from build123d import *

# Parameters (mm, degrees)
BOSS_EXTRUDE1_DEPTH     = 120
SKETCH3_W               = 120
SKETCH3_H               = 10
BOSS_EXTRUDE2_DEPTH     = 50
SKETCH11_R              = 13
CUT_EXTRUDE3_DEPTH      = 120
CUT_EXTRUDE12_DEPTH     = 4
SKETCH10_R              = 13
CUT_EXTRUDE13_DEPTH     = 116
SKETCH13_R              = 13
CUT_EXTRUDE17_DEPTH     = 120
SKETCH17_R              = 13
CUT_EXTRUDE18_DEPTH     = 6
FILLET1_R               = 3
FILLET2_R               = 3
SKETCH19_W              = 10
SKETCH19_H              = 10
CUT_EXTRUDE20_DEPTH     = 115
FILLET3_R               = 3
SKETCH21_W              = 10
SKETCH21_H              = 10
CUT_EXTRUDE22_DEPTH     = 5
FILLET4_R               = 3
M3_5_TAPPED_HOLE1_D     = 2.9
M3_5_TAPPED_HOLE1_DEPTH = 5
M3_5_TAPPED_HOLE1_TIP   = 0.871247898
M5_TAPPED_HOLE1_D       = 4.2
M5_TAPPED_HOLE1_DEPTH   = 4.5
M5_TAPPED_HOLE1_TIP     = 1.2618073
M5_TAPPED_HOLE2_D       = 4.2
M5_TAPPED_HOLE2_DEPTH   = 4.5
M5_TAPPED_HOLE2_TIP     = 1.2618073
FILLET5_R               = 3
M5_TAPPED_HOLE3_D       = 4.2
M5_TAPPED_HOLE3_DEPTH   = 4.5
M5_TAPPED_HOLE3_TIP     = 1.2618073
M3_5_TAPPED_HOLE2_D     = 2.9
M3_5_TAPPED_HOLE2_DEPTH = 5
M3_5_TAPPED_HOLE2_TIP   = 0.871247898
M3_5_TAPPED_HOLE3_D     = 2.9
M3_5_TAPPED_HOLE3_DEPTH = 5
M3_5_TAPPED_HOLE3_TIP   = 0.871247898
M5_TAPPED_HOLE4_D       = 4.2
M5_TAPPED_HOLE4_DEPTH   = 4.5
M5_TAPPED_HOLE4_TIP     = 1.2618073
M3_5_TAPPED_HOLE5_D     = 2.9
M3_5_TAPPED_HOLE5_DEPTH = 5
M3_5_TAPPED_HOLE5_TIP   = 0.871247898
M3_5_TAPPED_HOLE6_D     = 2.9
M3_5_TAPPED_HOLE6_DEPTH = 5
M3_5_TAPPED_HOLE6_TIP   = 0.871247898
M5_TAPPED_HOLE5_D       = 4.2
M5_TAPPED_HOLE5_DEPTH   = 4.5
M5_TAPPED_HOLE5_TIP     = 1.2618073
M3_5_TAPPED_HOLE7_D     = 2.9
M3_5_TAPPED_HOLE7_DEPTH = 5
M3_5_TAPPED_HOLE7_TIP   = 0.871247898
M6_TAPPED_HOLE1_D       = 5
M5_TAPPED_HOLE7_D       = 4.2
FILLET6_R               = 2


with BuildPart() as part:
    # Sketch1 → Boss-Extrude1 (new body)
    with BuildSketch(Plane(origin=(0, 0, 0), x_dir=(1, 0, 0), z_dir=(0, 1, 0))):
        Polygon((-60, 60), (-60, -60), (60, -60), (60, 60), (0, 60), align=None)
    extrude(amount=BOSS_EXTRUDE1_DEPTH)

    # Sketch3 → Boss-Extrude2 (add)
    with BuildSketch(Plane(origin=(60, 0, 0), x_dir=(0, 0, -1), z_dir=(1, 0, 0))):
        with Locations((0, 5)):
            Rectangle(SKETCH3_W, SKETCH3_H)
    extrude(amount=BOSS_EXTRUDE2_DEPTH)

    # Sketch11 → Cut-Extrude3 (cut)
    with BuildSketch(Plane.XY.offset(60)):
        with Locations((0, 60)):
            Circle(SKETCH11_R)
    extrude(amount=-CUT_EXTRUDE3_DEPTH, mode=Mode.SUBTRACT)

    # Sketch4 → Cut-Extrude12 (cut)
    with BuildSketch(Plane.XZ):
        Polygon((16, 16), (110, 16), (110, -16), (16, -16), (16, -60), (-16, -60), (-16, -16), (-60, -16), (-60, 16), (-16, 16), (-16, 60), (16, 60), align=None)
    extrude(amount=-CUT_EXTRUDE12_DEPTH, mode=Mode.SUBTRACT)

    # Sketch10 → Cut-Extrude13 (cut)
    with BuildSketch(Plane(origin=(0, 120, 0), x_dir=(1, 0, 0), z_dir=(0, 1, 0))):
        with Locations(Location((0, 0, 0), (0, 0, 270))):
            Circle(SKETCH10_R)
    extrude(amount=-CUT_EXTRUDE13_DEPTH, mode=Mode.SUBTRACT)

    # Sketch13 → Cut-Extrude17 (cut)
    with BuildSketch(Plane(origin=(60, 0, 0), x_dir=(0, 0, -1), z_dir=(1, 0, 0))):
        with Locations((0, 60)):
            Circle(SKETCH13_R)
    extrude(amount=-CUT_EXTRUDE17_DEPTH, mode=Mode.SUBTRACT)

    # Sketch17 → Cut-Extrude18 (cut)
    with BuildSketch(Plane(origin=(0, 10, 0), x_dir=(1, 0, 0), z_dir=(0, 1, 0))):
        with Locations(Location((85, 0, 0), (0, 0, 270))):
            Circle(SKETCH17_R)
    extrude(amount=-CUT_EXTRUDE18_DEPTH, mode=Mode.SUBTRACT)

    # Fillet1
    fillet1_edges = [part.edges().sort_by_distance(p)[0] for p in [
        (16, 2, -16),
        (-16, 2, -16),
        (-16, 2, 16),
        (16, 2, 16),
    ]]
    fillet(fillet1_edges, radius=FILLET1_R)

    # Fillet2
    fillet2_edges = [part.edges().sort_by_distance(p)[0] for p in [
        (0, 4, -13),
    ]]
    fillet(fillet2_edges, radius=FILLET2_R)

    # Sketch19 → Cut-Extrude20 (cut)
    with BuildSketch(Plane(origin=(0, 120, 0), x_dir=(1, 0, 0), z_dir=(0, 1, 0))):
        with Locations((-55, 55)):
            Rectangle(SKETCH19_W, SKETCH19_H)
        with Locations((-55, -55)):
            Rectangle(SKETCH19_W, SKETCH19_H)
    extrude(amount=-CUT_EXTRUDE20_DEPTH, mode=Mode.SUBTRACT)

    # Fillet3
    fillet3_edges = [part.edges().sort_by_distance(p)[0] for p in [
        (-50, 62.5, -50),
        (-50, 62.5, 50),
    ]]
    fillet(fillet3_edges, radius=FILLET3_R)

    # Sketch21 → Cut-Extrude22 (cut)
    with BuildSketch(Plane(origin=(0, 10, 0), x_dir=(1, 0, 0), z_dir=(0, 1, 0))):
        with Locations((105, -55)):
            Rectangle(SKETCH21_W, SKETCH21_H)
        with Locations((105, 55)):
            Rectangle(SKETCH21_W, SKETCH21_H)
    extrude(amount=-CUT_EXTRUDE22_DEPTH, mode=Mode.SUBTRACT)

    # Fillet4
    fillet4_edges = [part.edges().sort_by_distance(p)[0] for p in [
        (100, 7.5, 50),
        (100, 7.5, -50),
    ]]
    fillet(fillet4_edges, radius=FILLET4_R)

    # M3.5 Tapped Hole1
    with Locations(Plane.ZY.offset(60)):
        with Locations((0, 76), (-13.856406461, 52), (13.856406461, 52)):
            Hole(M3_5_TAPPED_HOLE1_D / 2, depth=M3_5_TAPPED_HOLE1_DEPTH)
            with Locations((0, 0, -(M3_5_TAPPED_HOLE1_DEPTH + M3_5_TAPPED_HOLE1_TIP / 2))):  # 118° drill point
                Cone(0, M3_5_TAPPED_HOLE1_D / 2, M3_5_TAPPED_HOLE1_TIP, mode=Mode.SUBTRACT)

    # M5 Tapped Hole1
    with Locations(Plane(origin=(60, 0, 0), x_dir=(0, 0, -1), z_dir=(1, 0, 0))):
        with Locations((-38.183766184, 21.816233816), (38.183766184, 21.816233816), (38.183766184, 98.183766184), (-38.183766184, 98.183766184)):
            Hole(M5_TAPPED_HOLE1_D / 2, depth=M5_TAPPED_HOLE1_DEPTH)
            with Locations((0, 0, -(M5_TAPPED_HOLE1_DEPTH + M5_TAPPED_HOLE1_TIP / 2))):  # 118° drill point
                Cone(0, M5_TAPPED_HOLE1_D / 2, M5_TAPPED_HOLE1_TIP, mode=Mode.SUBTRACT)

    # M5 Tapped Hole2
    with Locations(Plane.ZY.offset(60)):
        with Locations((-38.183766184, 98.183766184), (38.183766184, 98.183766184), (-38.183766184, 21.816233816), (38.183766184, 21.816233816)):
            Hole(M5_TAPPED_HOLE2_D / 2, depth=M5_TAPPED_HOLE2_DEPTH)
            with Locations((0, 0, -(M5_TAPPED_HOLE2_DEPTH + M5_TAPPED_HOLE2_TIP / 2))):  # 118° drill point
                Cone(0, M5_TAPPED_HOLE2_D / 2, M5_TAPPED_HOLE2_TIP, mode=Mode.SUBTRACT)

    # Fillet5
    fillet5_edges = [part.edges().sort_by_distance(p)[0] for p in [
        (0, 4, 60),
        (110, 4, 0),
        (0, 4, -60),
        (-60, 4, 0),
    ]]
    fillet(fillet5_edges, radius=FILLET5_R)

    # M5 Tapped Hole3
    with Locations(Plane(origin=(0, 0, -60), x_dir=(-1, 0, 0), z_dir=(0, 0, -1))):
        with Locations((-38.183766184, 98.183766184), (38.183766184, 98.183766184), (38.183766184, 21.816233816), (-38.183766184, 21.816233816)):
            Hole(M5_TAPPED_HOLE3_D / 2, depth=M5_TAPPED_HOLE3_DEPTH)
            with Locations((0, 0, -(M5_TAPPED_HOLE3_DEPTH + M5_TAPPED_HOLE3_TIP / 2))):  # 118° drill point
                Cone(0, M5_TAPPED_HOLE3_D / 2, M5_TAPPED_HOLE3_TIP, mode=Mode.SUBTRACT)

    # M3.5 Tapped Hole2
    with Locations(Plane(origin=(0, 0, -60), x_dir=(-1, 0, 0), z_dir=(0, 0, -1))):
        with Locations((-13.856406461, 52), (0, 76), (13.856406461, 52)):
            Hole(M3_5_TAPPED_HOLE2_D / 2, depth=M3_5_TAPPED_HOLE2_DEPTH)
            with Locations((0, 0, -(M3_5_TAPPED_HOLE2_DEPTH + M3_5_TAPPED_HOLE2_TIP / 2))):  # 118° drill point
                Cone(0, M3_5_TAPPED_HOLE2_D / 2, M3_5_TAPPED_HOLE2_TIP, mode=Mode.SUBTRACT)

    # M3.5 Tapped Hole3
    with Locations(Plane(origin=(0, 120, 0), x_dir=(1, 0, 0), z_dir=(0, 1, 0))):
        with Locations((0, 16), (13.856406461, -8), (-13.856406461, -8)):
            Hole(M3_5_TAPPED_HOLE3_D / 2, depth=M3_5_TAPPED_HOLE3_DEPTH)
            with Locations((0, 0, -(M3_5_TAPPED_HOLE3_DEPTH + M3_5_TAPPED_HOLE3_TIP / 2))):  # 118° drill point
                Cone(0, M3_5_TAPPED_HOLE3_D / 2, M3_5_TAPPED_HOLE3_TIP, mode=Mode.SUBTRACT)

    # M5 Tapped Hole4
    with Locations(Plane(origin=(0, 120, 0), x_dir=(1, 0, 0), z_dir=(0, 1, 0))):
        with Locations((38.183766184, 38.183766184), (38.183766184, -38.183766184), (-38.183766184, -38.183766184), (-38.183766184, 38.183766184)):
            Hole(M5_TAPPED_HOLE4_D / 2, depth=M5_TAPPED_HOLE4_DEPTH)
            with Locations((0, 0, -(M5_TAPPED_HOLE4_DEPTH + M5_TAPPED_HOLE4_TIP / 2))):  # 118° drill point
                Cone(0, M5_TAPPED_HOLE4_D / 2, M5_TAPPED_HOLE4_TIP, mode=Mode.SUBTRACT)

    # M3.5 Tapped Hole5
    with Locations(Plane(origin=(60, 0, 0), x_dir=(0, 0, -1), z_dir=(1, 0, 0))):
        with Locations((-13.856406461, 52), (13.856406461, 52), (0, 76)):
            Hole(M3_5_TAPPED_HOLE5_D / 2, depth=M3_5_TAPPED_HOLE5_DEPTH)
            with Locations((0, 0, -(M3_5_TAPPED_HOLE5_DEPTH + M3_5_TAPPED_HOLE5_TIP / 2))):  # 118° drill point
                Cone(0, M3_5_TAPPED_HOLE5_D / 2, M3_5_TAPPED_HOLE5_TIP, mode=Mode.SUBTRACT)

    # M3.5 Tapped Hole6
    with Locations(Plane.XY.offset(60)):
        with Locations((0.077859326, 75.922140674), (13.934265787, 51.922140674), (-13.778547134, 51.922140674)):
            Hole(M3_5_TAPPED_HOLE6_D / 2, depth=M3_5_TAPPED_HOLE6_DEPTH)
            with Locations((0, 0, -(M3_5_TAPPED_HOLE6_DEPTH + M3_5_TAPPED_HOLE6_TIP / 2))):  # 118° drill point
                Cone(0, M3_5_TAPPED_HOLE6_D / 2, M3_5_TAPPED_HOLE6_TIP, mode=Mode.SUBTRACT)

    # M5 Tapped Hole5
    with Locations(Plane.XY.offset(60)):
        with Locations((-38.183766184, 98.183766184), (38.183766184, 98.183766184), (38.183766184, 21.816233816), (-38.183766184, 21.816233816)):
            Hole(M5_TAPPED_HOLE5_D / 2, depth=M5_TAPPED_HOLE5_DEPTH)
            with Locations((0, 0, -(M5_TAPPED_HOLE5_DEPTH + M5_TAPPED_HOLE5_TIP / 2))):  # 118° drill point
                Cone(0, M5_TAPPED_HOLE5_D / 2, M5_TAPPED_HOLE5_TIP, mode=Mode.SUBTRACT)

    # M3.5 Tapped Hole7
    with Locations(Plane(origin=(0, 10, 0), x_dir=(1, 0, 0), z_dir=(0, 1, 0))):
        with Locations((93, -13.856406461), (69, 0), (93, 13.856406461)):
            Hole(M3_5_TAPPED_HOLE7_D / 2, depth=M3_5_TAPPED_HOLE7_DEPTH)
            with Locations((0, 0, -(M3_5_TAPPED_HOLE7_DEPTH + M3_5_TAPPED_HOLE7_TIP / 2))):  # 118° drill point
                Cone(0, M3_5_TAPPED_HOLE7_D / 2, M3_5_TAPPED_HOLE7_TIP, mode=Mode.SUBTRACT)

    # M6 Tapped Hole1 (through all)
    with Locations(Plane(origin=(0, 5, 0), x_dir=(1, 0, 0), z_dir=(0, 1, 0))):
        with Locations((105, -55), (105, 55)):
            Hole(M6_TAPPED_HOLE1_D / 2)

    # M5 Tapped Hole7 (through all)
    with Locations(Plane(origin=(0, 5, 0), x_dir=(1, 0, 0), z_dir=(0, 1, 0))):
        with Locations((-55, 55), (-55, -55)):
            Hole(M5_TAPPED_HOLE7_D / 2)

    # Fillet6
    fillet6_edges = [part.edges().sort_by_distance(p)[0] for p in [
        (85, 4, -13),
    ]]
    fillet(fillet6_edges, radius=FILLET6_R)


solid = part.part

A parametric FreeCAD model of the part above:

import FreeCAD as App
import Part
import Sketcher
from FreeCAD import Vector


def edges_at(feature, points):
    """Names of the edges that pass closest to the given points."""
    edges = feature.Shape.Edges
    near = lambda p: min(range(len(edges)), key=lambda i: edges[i].distToShape(Part.Vertex(*p))[0])
    return sorted({f"Edge{near(p) + 1}" for p in points})


def add_polygon(sketch, points):
    """Adds a closed chain of lines whose ends are joined by coincident constraints."""
    first, n = sketch.GeometryCount, len(points)
    for a, b in zip(points, points[1:] + points[:1]):
        sketch.addGeometry(Part.LineSegment(App.Vector(*a, 0), App.Vector(*b, 0)), False)
    for i in range(n):
        sketch.addConstraint(Sketcher.Constraint("Coincident", first + i, 2, first + (i + 1) % n, 1))

doc = App.newDocument("Part")
body = doc.addObject("PartDesign::Body", "Body")

sketch1 = doc.addObject("Sketcher::SketchObject", "Sketch")
body.addObject(sketch1)
sketch1.AttachmentSupport = (doc.XZ_Plane, [""])
sketch1.MapMode = "FlatFace"
add_polygon(sketch1, [(-60, -60), (-60, 60), (60, 60), (60, -60)])
sketch1.addConstraint([
    Sketcher.Constraint("Vertical", 0),
    Sketcher.Constraint("Horizontal", 1),
    Sketcher.Constraint("Vertical", 2),
    Sketcher.Constraint("Horizontal", 3),
    Sketcher.Constraint("Symmetric", 0, 2, 2, 2, -1, 1),
    Sketcher.Constraint("Equal", 3, 0),
    Sketcher.Constraint("DistanceX", 1, 1, 1, 2, 120.0),
])
pad1 = doc.addObject("PartDesign::Pad", "Pad")
body.addObject(pad1)
pad1.Profile = sketch1
pad1.Length = 120
pad1.Reversed = True

sketch2 = doc.addObject("Sketcher::SketchObject", "Sketch001")
body.addObject(sketch2)
sketch2.AttachmentSupport = (doc.YZ_Plane, [""])
sketch2.MapMode = "FlatFace"
sketch2.AttachmentOffset = App.Placement(Vector(0, 0, 60), App.Rotation())
add_polygon(sketch2, [(10, 60), (0, 60), (0, -60), (10, -60)])
sketch2.addConstraint([
    Sketcher.Constraint("Horizontal", 0),
    Sketcher.Constraint("Vertical", 1),
    Sketcher.Constraint("Horizontal", 2),
    Sketcher.Constraint("Vertical", 3),
    Sketcher.Constraint("Symmetric", 0, 2, 1, 2, -1, 1),
    Sketcher.Constraint("DistanceX", 0, 2, 0, 1, 10.0),
    Sketcher.Constraint("DistanceY", 1, 2, 1, 1, 120.0),
])
pad2 = doc.addObject("PartDesign::Pad", "Pad001")
body.addObject(pad2)
pad2.Profile = sketch2
pad2.Length = 50

sketch3 = doc.addObject("Sketcher::SketchObject", "Sketch002")
body.addObject(sketch3)
sketch3.AttachmentSupport = (doc.XY_Plane, [""])
sketch3.MapMode = "FlatFace"
sketch3.AttachmentOffset = App.Placement(Vector(0, 0, 60), App.Rotation())
sketch3.addGeometry(Part.Circle(Vector(0, 60, 0), Vector(0, 0, 1), 13), False)
sketch3.addConstraint([
    Sketcher.Constraint("PointOnObject", 0, 3, -2),
    Sketcher.Constraint("Diameter", 0, 26.0),
    Sketcher.Constraint("DistanceY", -1, 1, 0, 3, 60.0),
])
pocket1 = doc.addObject("PartDesign::Pocket", "Pocket")
body.addObject(pocket1)
pocket1.Profile = sketch3
pocket1.Length = 120

sketch4 = doc.addObject("Sketcher::SketchObject", "Sketch003")
body.addObject(sketch4)
sketch4.AttachmentSupport = (doc.XZ_Plane, [""])
sketch4.MapMode = "FlatFace"
add_polygon(sketch4, [(110, 16), (16, 16), (16, 60), (-16, 60), (-16, 16), (-60, 16), (-60, -16), (-16, -16), (-16, -60), (16, -60), (16, -16), (110, -16)])
sketch4.addConstraint([
    Sketcher.Constraint("Horizontal", 0),
    Sketcher.Constraint("Vertical", 1),
    Sketcher.Constraint("Horizontal", 2),
    Sketcher.Constraint("Vertical", 3),
    Sketcher.Constraint("Horizontal", 4),
    Sketcher.Constraint("Vertical", 5),
    Sketcher.Constraint("Horizontal", 6),
    Sketcher.Constraint("Vertical", 7),
    Sketcher.Constraint("Horizontal", 8),
    Sketcher.Constraint("Vertical", 9),
    Sketcher.Constraint("Horizontal", 10),
    Sketcher.Constraint("Vertical", 11),
    Sketcher.Constraint("Symmetric", 0, 2, 6, 2, -1, 1),
    Sketcher.Constraint("Symmetric", 2, 2, 8, 2, -1, 1),
    Sketcher.Constraint("Symmetric", 0, 2, 3, 2, -2),
    Sketcher.Constraint("Horizontal", 6, 2, 9, 2),
    Sketcher.Constraint("Equal", 6, 1),
    Sketcher.Constraint("Equal", 8, 5),
    Sketcher.Constraint("DistanceX", 0, 2, 0, 1, 94.0),
    Sketcher.Constraint("DistanceX", 2, 2, 2, 1, 32.0),
    Sketcher.Constraint("DistanceX", 4, 2, 4, 1, 44.0),
])
pocket2 = doc.addObject("PartDesign::Pocket", "Pocket001")
body.addObject(pocket2)
pocket2.Profile = sketch4
pocket2.Length = 4

sketch5 = doc.addObject("Sketcher::SketchObject", "Sketch004")
body.addObject(sketch5)
sketch5.AttachmentSupport = (doc.XZ_Plane, [""])
sketch5.MapMode = "FlatFace"
sketch5.AttachmentOffset = App.Placement(Vector(0, 0, -120), App.Rotation())
sketch5.addGeometry(Part.Circle(Vector(0, 0, 0), Vector(0, 0, 1), 13), False)
sketch5.addConstraint([
    Sketcher.Constraint("Coincident", 0, 3, -1, 1),
    Sketcher.Constraint("Diameter", 0, 26.0),
])
pocket3 = doc.addObject("PartDesign::Pocket", "Pocket002")
body.addObject(pocket3)
pocket3.Profile = sketch5
pocket3.Length = 116
pocket3.Reversed = True

sketch6 = doc.addObject("Sketcher::SketchObject", "Sketch005")
body.addObject(sketch6)
sketch6.AttachmentSupport = (doc.YZ_Plane, [""])
sketch6.MapMode = "FlatFace"
sketch6.AttachmentOffset = App.Placement(Vector(0, 0, 60), App.Rotation())
sketch6.addGeometry(Part.Circle(Vector(60, 0, 0), Vector(0, 0, 1), 13), False)
sketch6.addConstraint([
    Sketcher.Constraint("PointOnObject", 0, 3, -1),
    Sketcher.Constraint("Diameter", 0, 26.0),
    Sketcher.Constraint("DistanceX", -1, 1, 0, 3, 60.0),
])
pocket4 = doc.addObject("PartDesign::Pocket", "Pocket003")
body.addObject(pocket4)
pocket4.Profile = sketch6
pocket4.Length = 120

sketch7 = doc.addObject("Sketcher::SketchObject", "Sketch006")
body.addObject(sketch7)
sketch7.AttachmentSupport = (doc.XZ_Plane, [""])
sketch7.MapMode = "FlatFace"
sketch7.AttachmentOffset = App.Placement(Vector(0, 0, -10), App.Rotation())
sketch7.addGeometry(Part.Circle(Vector(85, 0, 0), Vector(0, 0, 1), 13), False)
sketch7.addConstraint([
    Sketcher.Constraint("PointOnObject", 0, 3, -1),
    Sketcher.Constraint("Diameter", 0, 26.0),
    Sketcher.Constraint("DistanceX", -1, 1, 0, 3, 85.0),
])
pocket5 = doc.addObject("PartDesign::Pocket", "Pocket004")
body.addObject(pocket5)
pocket5.Profile = sketch7
pocket5.Length = 6
pocket5.Reversed = True
doc.recompute()

fillet = doc.addObject("PartDesign::Fillet", "Fillet")
body.addObject(fillet)
fillet.Base = (pocket5, edges_at(pocket5, [
    (16, 2, -16),
    (-16, 2, -16),
    (-16, 2, 16),
    (16, 2, 16),
]))
fillet.Radius = 3
doc.recompute()

fillet2 = doc.addObject("PartDesign::Fillet", "Fillet001")
body.addObject(fillet2)
fillet2.Base = (fillet, edges_at(fillet, [(0, 4, -13)]))
fillet2.Radius = 3

sketch8 = doc.addObject("Sketcher::SketchObject", "Sketch007")
body.addObject(sketch8)
sketch8.AttachmentSupport = (doc.XZ_Plane, [""])
sketch8.MapMode = "FlatFace"
sketch8.AttachmentOffset = App.Placement(Vector(0, 0, -120), App.Rotation())
add_polygon(sketch8, [(-60, -60), (-60, -50), (-50, -50), (-50, -60)])
add_polygon(sketch8, [(-60, 50), (-60, 60), (-50, 60), (-50, 50)])
sketch8.addConstraint([
    Sketcher.Constraint("Vertical", 0),
    Sketcher.Constraint("Horizontal", 1),
    Sketcher.Constraint("Vertical", 2),
    Sketcher.Constraint("Horizontal", 3),
    Sketcher.Constraint("Vertical", 4),
    Sketcher.Constraint("Horizontal", 5),
    Sketcher.Constraint("Vertical", 6),
    Sketcher.Constraint("Horizontal", 7),
    Sketcher.Constraint("Symmetric", 3, 2, 4, 2, -1),
    Sketcher.Constraint("Symmetric", 1, 2, 6, 2, -1),
    Sketcher.Constraint("Equal", 7, 0),
    Sketcher.Constraint("DistanceX", 1, 1, 1, 2, 10.0),
    Sketcher.Constraint("DistanceX", 0, 2, -1, 1, 60.0),
    Sketcher.Constraint("DistanceY", 0, 2, -1, 1, 50.0),
])
pocket6 = doc.addObject("PartDesign::Pocket", "Pocket005")
body.addObject(pocket6)
pocket6.Profile = sketch8
pocket6.Length = 115
pocket6.Reversed = True
doc.recompute()

fillet3 = doc.addObject("PartDesign::Fillet", "Fillet002")
body.addObject(fillet3)
fillet3.Base = (pocket6, edges_at(pocket6, [(-50, 62.5, -50), (-50, 62.5, 50)]))
fillet3.Radius = 3

sketch9 = doc.addObject("Sketcher::SketchObject", "Sketch008")
body.addObject(sketch9)
sketch9.AttachmentSupport = (doc.XZ_Plane, [""])
sketch9.MapMode = "FlatFace"
sketch9.AttachmentOffset = App.Placement(Vector(0, 0, -10), App.Rotation())
add_polygon(sketch9, [(100, 50), (100, 60), (110, 60), (110, 50)])
add_polygon(sketch9, [(100, -60), (100, -50), (110, -50), (110, -60)])
sketch9.addConstraint([
    Sketcher.Constraint("Vertical", 0),
    Sketcher.Constraint("Horizontal", 1),
    Sketcher.Constraint("Vertical", 2),
    Sketcher.Constraint("Horizontal", 3),
    Sketcher.Constraint("Vertical", 4),
    Sketcher.Constraint("Horizontal", 5),
    Sketcher.Constraint("Vertical", 6),
    Sketcher.Constraint("Horizontal", 7),
    Sketcher.Constraint("Symmetric", 3, 2, 4, 2, -1),
    Sketcher.Constraint("Symmetric", 1, 2, 6, 2, -1),
    Sketcher.Constraint("Equal", 7, 0),
    Sketcher.Constraint("DistanceX", 1, 1, 1, 2, 10.0),
    Sketcher.Constraint("DistanceX", -1, 1, 0, 2, 100.0),
    Sketcher.Constraint("DistanceY", -1, 1, 0, 2, 60.0),
])
pocket7 = doc.addObject("PartDesign::Pocket", "Pocket006")
body.addObject(pocket7)
pocket7.Profile = sketch9
pocket7.Length = 5
pocket7.Reversed = True
doc.recompute()

fillet4 = doc.addObject("PartDesign::Fillet", "Fillet003")
body.addObject(fillet4)
fillet4.Base = (pocket7, edges_at(pocket7, [(100, 7.5, 50), (100, 7.5, -50)]))
fillet4.Radius = 3

sketch10 = doc.addObject("Sketcher::SketchObject", "Sketch009")
body.addObject(sketch10)
sketch10.AttachmentSupport = (doc.YZ_Plane, [""])
sketch10.MapMode = "FlatFace"
sketch10.AttachmentOffset = App.Placement(Vector(0, 0, -60), App.Rotation())
sketch10.addGeometry([
    Part.Circle(Vector(76, 0, 0), Vector(0, 0, 1), 1.4),
    Part.Circle(Vector(52, -13.9, 0), Vector(0, 0, 1), 1.4),
    Part.Circle(Vector(52, 13.9, 0), Vector(0, 0, 1), 1.4),
], False)
sketch10.addConstraint([
    Sketcher.Constraint("Equal", 0, 1),
    Sketcher.Constraint("Equal", 1, 2),
    Sketcher.Constraint("Symmetric", 1, 3, 2, 3, -1),
    Sketcher.Constraint("PointOnObject", 0, 3, -1),
    Sketcher.Constraint("Diameter", 0, 2.9),
    Sketcher.Constraint("DistanceX", -1, 1, 0, 3, 76.0),
    Sketcher.Constraint("DistanceX", -1, 1, 1, 3, 52.0),
    Sketcher.Constraint("DistanceY", 1, 3, -1, 1, 13.856406),
])
doc.recompute()
hole = doc.addObject("PartDesign::Hole", "Hole")
body.addObject(hole)
hole.Profile = sketch10
hole.ThreadType = "None"
hole.Diameter = 2.9
hole.DepthType = "Dimension"
hole.Depth = 5
hole.DrillPoint = "Angled"
hole.DrillPointAngle = 118
hole.Reversed = True

sketch11 = doc.addObject("Sketcher::SketchObject", "Sketch010")
body.addObject(sketch11)
sketch11.AttachmentSupport = (doc.YZ_Plane, [""])
sketch11.MapMode = "FlatFace"
sketch11.AttachmentOffset = App.Placement(Vector(0, 0, 60), App.Rotation())
sketch11.addGeometry([
    Part.Circle(Vector(21.8, 38.2, 0), Vector(0, 0, 1), 2.1),
    Part.Circle(Vector(21.8, -38.2, 0), Vector(0, 0, 1), 2.1),
    Part.Circle(Vector(98.2, -38.2, 0), Vector(0, 0, 1), 2.1),
    Part.Circle(Vector(98.2, 38.2, 0), Vector(0, 0, 1), 2.1),
], False)
sketch11.addConstraint([
    Sketcher.Constraint("Equal", 0, 1),
    Sketcher.Constraint("Equal", 1, 2),
    Sketcher.Constraint("Equal", 2, 3),
    Sketcher.Constraint("Symmetric", 0, 3, 1, 3, -1),
    Sketcher.Constraint("Symmetric", 2, 3, 3, 3, -1),
    Sketcher.Constraint("Horizontal", 1, 3, 2, 3),
    Sketcher.Constraint("Diameter", 0, 4.2),
    Sketcher.Constraint("DistanceX", -1, 1, 0, 3, 21.816234),
    Sketcher.Constraint("DistanceY", -1, 1, 0, 3, 38.183766),
    Sketcher.Constraint("DistanceX", -1, 1, 2, 3, 98.183766),
])
doc.recompute()
hole2 = doc.addObject("PartDesign::Hole", "Hole001")
body.addObject(hole2)
hole2.Profile = sketch11
hole2.ThreadType = "None"
hole2.Diameter = 4.2
hole2.DepthType = "Dimension"
hole2.Depth = 4.5
hole2.DrillPoint = "Angled"
hole2.DrillPointAngle = 118

sketch12 = doc.addObject("Sketcher::SketchObject", "Sketch011")
body.addObject(sketch12)
sketch12.AttachmentSupport = (doc.YZ_Plane, [""])
sketch12.MapMode = "FlatFace"
sketch12.AttachmentOffset = App.Placement(Vector(0, 0, -60), App.Rotation())
sketch12.addGeometry([
    Part.Circle(Vector(98.2, -38.2, 0), Vector(0, 0, 1), 2.1),
    Part.Circle(Vector(98.2, 38.2, 0), Vector(0, 0, 1), 2.1),
    Part.Circle(Vector(21.8, -38.2, 0), Vector(0, 0, 1), 2.1),
    Part.Circle(Vector(21.8, 38.2, 0), Vector(0, 0, 1), 2.1),
], False)
sketch12.addConstraint([
    Sketcher.Constraint("Equal", 0, 1),
    Sketcher.Constraint("Equal", 1, 2),
    Sketcher.Constraint("Equal", 2, 3),
    Sketcher.Constraint("Symmetric", 0, 3, 1, 3, -1),
    Sketcher.Constraint("Symmetric", 2, 3, 3, 3, -1),
    Sketcher.Constraint("Horizontal", 0, 3, 2, 3),
    Sketcher.Constraint("Diameter", 0, 4.2),
    Sketcher.Constraint("DistanceX", -1, 1, 0, 3, 98.183766),
    Sketcher.Constraint("DistanceY", 0, 3, -1, 1, 38.183766),
    Sketcher.Constraint("DistanceX", -1, 1, 2, 3, 21.816234),
])
doc.recompute()
hole3 = doc.addObject("PartDesign::Hole", "Hole002")
body.addObject(hole3)
hole3.Profile = sketch12
hole3.ThreadType = "None"
hole3.Diameter = 4.2
hole3.DepthType = "Dimension"
hole3.Depth = 4.5
hole3.DrillPoint = "Angled"
hole3.DrillPointAngle = 118
hole3.Reversed = True
doc.recompute()

fillet5 = doc.addObject("PartDesign::Fillet", "Fillet004")
body.addObject(fillet5)
fillet5.Base = (hole3, edges_at(hole3, [
    (0, 4, 60),
    (110, 4, 0),
    (0, 4, -60),
    (-60, 4, 0),
]))
fillet5.Radius = 3

sketch13 = doc.addObject("Sketcher::SketchObject", "Sketch012")
body.addObject(sketch13)
sketch13.AttachmentSupport = (doc.XY_Plane, [""])
sketch13.MapMode = "FlatFace"
sketch13.AttachmentOffset = App.Placement(Vector(0, 0, -60), App.Rotation())
sketch13.addGeometry([
    Part.Circle(Vector(38.2, 98.2, 0), Vector(0, 0, 1), 2.1),
    Part.Circle(Vector(-38.2, 98.2, 0), Vector(0, 0, 1), 2.1),
    Part.Circle(Vector(-38.2, 21.8, 0), Vector(0, 0, 1), 2.1),
    Part.Circle(Vector(38.2, 21.8, 0), Vector(0, 0, 1), 2.1),
], False)
sketch13.addConstraint([
    Sketcher.Constraint("Equal", 0, 1),
    Sketcher.Constraint("Equal", 1, 2),
    Sketcher.Constraint("Equal", 2, 3),
    Sketcher.Constraint("Symmetric", 0, 3, 1, 3, -2),
    Sketcher.Constraint("Symmetric", 2, 3, 3, 3, -2),
    Sketcher.Constraint("Vertical", 1, 3, 2, 3),
    Sketcher.Constraint("Diameter", 0, 4.2),
    Sketcher.Constraint("DistanceX", -1, 1, 0, 3, 38.183766),
    Sketcher.Constraint("DistanceY", -1, 1, 0, 3, 98.183766),
    Sketcher.Constraint("DistanceY", -1, 1, 2, 3, 21.816234),
])
doc.recompute()
hole4 = doc.addObject("PartDesign::Hole", "Hole003")
body.addObject(hole4)
hole4.Profile = sketch13
hole4.ThreadType = "None"
hole4.Diameter = 4.2
hole4.DepthType = "Dimension"
hole4.Depth = 4.5
hole4.DrillPoint = "Angled"
hole4.DrillPointAngle = 118
hole4.Reversed = True

sketch14 = doc.addObject("Sketcher::SketchObject", "Sketch013")
body.addObject(sketch14)
sketch14.AttachmentSupport = (doc.XY_Plane, [""])
sketch14.MapMode = "FlatFace"
sketch14.AttachmentOffset = App.Placement(Vector(0, 0, -60), App.Rotation())
sketch14.addGeometry([
    Part.Circle(Vector(13.9, 52, 0), Vector(0, 0, 1), 1.4),
    Part.Circle(Vector(0, 76, 0), Vector(0, 0, 1), 1.4),
    Part.Circle(Vector(-13.9, 52, 0), Vector(0, 0, 1), 1.4),
], False)
sketch14.addConstraint([
    Sketcher.Constraint("Equal", 0, 1),
    Sketcher.Constraint("Equal", 1, 2),
    Sketcher.Constraint("Symmetric", 0, 3, 2, 3, -2),
    Sketcher.Constraint("PointOnObject", 1, 3, -2),
    Sketcher.Constraint("Diameter", 0, 2.9),
    Sketcher.Constraint("DistanceY", -1, 1, 0, 3, 52.0),
    Sketcher.Constraint("DistanceY", -1, 1, 1, 3, 76.0),
    Sketcher.Constraint("DistanceX", -1, 1, 0, 3, 13.856406),
])
doc.recompute()
hole5 = doc.addObject("PartDesign::Hole", "Hole004")
body.addObject(hole5)
hole5.Profile = sketch14
hole5.ThreadType = "None"
hole5.Diameter = 2.9
hole5.DepthType = "Dimension"
hole5.Depth = 5
hole5.DrillPoint = "Angled"
hole5.DrillPointAngle = 118
hole5.Reversed = True

sketch15 = doc.addObject("Sketcher::SketchObject", "Sketch014")
body.addObject(sketch15)
sketch15.AttachmentSupport = (doc.XZ_Plane, [""])
sketch15.MapMode = "FlatFace"
sketch15.AttachmentOffset = App.Placement(Vector(0, 0, -120), App.Rotation())
sketch15.addGeometry([
    Part.Circle(Vector(0, -16, 0), Vector(0, 0, 1), 1.4),
    Part.Circle(Vector(13.9, 8, 0), Vector(0, 0, 1), 1.4),
    Part.Circle(Vector(-13.9, 8, 0), Vector(0, 0, 1), 1.4),
], False)
sketch15.addConstraint([
    Sketcher.Constraint("Equal", 0, 1),
    Sketcher.Constraint("Equal", 1, 2),
    Sketcher.Constraint("Symmetric", 1, 3, 2, 3, -2),
    Sketcher.Constraint("PointOnObject", 0, 3, -2),
    Sketcher.Constraint("Diameter", 0, 2.9),
    Sketcher.Constraint("DistanceY", 0, 3, -1, 1, 16.0),
    Sketcher.Constraint("DistanceY", -1, 1, 1, 3, 8.0),
    Sketcher.Constraint("DistanceX", -1, 1, 1, 3, 13.856406),
])
doc.recompute()
hole6 = doc.addObject("PartDesign::Hole", "Hole005")
body.addObject(hole6)
hole6.Profile = sketch15
hole6.ThreadType = "None"
hole6.Diameter = 2.9
hole6.DepthType = "Dimension"
hole6.Depth = 5
hole6.DrillPoint = "Angled"
hole6.DrillPointAngle = 118
hole6.Reversed = True

sketch16 = doc.addObject("Sketcher::SketchObject", "Sketch015")
body.addObject(sketch16)
sketch16.AttachmentSupport = (doc.XZ_Plane, [""])
sketch16.MapMode = "FlatFace"
sketch16.AttachmentOffset = App.Placement(Vector(0, 0, -120), App.Rotation())
sketch16.addGeometry([
    Part.Circle(Vector(38.2, -38.2, 0), Vector(0, 0, 1), 2.1),
    Part.Circle(Vector(38.2, 38.2, 0), Vector(0, 0, 1), 2.1),
    Part.Circle(Vector(-38.2, 38.2, 0), Vector(0, 0, 1), 2.1),
    Part.Circle(Vector(-38.2, -38.2, 0), Vector(0, 0, 1), 2.1),
], False)
sketch16.addConstraint([
    Sketcher.Constraint("Equal", 0, 1),
    Sketcher.Constraint("Equal", 1, 2),
    Sketcher.Constraint("Equal", 2, 3),
    Sketcher.Constraint("Symmetric", 0, 3, 2, 3, -1, 1),
    Sketcher.Constraint("Symmetric", 1, 3, 3, 3, -1, 1),
    Sketcher.Constraint("Symmetric", 1, 3, 2, 3, -2),
    Sketcher.Constraint("Diameter", 0, 4.2),
    Sketcher.Constraint("DistanceX", -1, 1, 0, 3, 38.183766),
    Sketcher.Constraint("DistanceY", 0, 3, -1, 1, 38.183766),
])
doc.recompute()
hole7 = doc.addObject("PartDesign::Hole", "Hole006")
body.addObject(hole7)
hole7.Profile = sketch16
hole7.ThreadType = "None"
hole7.Diameter = 4.2
hole7.DepthType = "Dimension"
hole7.Depth = 4.5
hole7.DrillPoint = "Angled"
hole7.DrillPointAngle = 118
hole7.Reversed = True

sketch17 = doc.addObject("Sketcher::SketchObject", "Sketch016")
body.addObject(sketch17)
sketch17.AttachmentSupport = (doc.YZ_Plane, [""])
sketch17.MapMode = "FlatFace"
sketch17.AttachmentOffset = App.Placement(Vector(0, 0, 60), App.Rotation())
sketch17.addGeometry([
    Part.Circle(Vector(52, 13.9, 0), Vector(0, 0, 1), 1.4),
    Part.Circle(Vector(52, -13.9, 0), Vector(0, 0, 1), 1.4),
    Part.Circle(Vector(76, 0, 0), Vector(0, 0, 1), 1.4),
], False)
sketch17.addConstraint([
    Sketcher.Constraint("Equal", 0, 1),
    Sketcher.Constraint("Equal", 1, 2),
    Sketcher.Constraint("Symmetric", 0, 3, 1, 3, -1),
    Sketcher.Constraint("PointOnObject", 2, 3, -1),
    Sketcher.Constraint("Diameter", 0, 2.9),
    Sketcher.Constraint("DistanceX", -1, 1, 0, 3, 52.0),
    Sketcher.Constraint("DistanceX", -1, 1, 2, 3, 76.0),
    Sketcher.Constraint("DistanceY", -1, 1, 0, 3, 13.856406),
])
doc.recompute()
hole8 = doc.addObject("PartDesign::Hole", "Hole007")
body.addObject(hole8)
hole8.Profile = sketch17
hole8.ThreadType = "None"
hole8.Diameter = 2.9
hole8.DepthType = "Dimension"
hole8.Depth = 5
hole8.DrillPoint = "Angled"
hole8.DrillPointAngle = 118

sketch18 = doc.addObject("Sketcher::SketchObject", "Sketch017")
body.addObject(sketch18)
sketch18.AttachmentSupport = (doc.XY_Plane, [""])
sketch18.MapMode = "FlatFace"
sketch18.AttachmentOffset = App.Placement(Vector(0, 0, 60), App.Rotation())
sketch18.addGeometry([
    Part.Circle(Vector(0.1, 75.9, 0), Vector(0, 0, 1), 1.4),
    Part.Circle(Vector(13.9, 51.9, 0), Vector(0, 0, 1), 1.4),
    Part.Circle(Vector(-13.8, 51.9, 0), Vector(0, 0, 1), 1.4),
], False)
sketch18.addConstraint([
    Sketcher.Constraint("Equal", 0, 1),
    Sketcher.Constraint("Equal", 1, 2),
    Sketcher.Constraint("Horizontal", 1, 3, 2, 3),
    Sketcher.Constraint("Diameter", 0, 2.9),
    Sketcher.Constraint("DistanceY", 1, 3, 0, 3, 24.0),
    Sketcher.Constraint("DistanceX", -1, 1, 0, 3, 0.077859),
    Sketcher.Constraint("DistanceY", -1, 1, 0, 3, 75.922141),
    Sketcher.Constraint("DistanceX", -1, 1, 1, 3, 13.934266),
    Sketcher.Constraint("DistanceX", 2, 3, -1, 1, 13.778547),
])
doc.recompute()
hole9 = doc.addObject("PartDesign::Hole", "Hole008")
body.addObject(hole9)
hole9.Profile = sketch18
hole9.ThreadType = "None"
hole9.Diameter = 2.9
hole9.DepthType = "Dimension"
hole9.Depth = 5
hole9.DrillPoint = "Angled"
hole9.DrillPointAngle = 118

sketch19 = doc.addObject("Sketcher::SketchObject", "Sketch018")
body.addObject(sketch19)
sketch19.AttachmentSupport = (doc.XY_Plane, [""])
sketch19.MapMode = "FlatFace"
sketch19.AttachmentOffset = App.Placement(Vector(0, 0, 60), App.Rotation())
sketch19.addGeometry([
    Part.Circle(Vector(-38.2, 98.2, 0), Vector(0, 0, 1), 2.1),
    Part.Circle(Vector(38.2, 98.2, 0), Vector(0, 0, 1), 2.1),
    Part.Circle(Vector(38.2, 21.8, 0), Vector(0, 0, 1), 2.1),
    Part.Circle(Vector(-38.2, 21.8, 0), Vector(0, 0, 1), 2.1),
], False)
sketch19.addConstraint([
    Sketcher.Constraint("Equal", 0, 1),
    Sketcher.Constraint("Equal", 1, 2),
    Sketcher.Constraint("Equal", 2, 3),
    Sketcher.Constraint("Symmetric", 0, 3, 1, 3, -2),
    Sketcher.Constraint("Symmetric", 2, 3, 3, 3, -2),
    Sketcher.Constraint("Vertical", 1, 3, 2, 3),
    Sketcher.Constraint("Diameter", 0, 4.2),
    Sketcher.Constraint("DistanceX", 0, 3, -1, 1, 38.183766),
    Sketcher.Constraint("DistanceY", -1, 1, 0, 3, 98.183766),
    Sketcher.Constraint("DistanceY", -1, 1, 2, 3, 21.816234),
])
doc.recompute()
hole10 = doc.addObject("PartDesign::Hole", "Hole009")
body.addObject(hole10)
hole10.Profile = sketch19
hole10.ThreadType = "None"
hole10.Diameter = 4.2
hole10.DepthType = "Dimension"
hole10.Depth = 4.5
hole10.DrillPoint = "Angled"
hole10.DrillPointAngle = 118

sketch20 = doc.addObject("Sketcher::SketchObject", "Sketch019")
body.addObject(sketch20)
sketch20.AttachmentSupport = (doc.XZ_Plane, [""])
sketch20.MapMode = "FlatFace"
sketch20.AttachmentOffset = App.Placement(Vector(0, 0, -10), App.Rotation())
sketch20.addGeometry([
    Part.Circle(Vector(93, 13.9, 0), Vector(0, 0, 1), 1.4),
    Part.Circle(Vector(69, 0, 0), Vector(0, 0, 1), 1.4),
    Part.Circle(Vector(93, -13.9, 0), Vector(0, 0, 1), 1.4),
], False)
sketch20.addConstraint([
    Sketcher.Constraint("Equal", 0, 1),
    Sketcher.Constraint("Equal", 1, 2),
    Sketcher.Constraint("Symmetric", 0, 3, 2, 3, -1),
    Sketcher.Constraint("PointOnObject", 1, 3, -1),
    Sketcher.Constraint("Diameter", 0, 2.9),
    Sketcher.Constraint("DistanceX", -1, 1, 0, 3, 93.0),
    Sketcher.Constraint("DistanceX", -1, 1, 1, 3, 69.0),
    Sketcher.Constraint("DistanceY", -1, 1, 0, 3, 13.856406),
])
doc.recompute()
hole11 = doc.addObject("PartDesign::Hole", "Hole010")
body.addObject(hole11)
hole11.Profile = sketch20
hole11.ThreadType = "None"
hole11.Diameter = 2.9
hole11.DepthType = "Dimension"
hole11.Depth = 5
hole11.DrillPoint = "Angled"
hole11.DrillPointAngle = 118
hole11.Reversed = True

sketch21 = doc.addObject("Sketcher::SketchObject", "Sketch020")
body.addObject(sketch21)
sketch21.AttachmentSupport = (doc.XZ_Plane, [""])
sketch21.MapMode = "FlatFace"
sketch21.AttachmentOffset = App.Placement(Vector(0, 0, -5), App.Rotation())
sketch21.addGeometry([
    Part.Circle(Vector(105, 55, 0), Vector(0, 0, 1), 2.5),
    Part.Circle(Vector(105, -55, 0), Vector(0, 0, 1), 2.5),
], False)
sketch21.addConstraint([
    Sketcher.Constraint("Equal", 0, 1),
    Sketcher.Constraint("Symmetric", 0, 3, 1, 3, -1),
    Sketcher.Constraint("Diameter", 0, 5.0),
    Sketcher.Constraint("DistanceX", -1, 1, 0, 3, 105.0),
    Sketcher.Constraint("DistanceY", -1, 1, 0, 3, 55.0),
])
doc.recompute()
hole12 = doc.addObject("PartDesign::Hole", "Hole011")
body.addObject(hole12)
hole12.Profile = sketch21
hole12.ThreadType = "None"
hole12.Diameter = 5
hole12.DepthType = "ThroughAll"
hole12.Reversed = True

sketch22 = doc.addObject("Sketcher::SketchObject", "Sketch021")
body.addObject(sketch22)
sketch22.AttachmentSupport = (doc.XZ_Plane, [""])
sketch22.MapMode = "FlatFace"
sketch22.AttachmentOffset = App.Placement(Vector(0, 0, -5), App.Rotation())
sketch22.addGeometry([
    Part.Circle(Vector(-55, -55, 0), Vector(0, 0, 1), 2.1),
    Part.Circle(Vector(-55, 55, 0), Vector(0, 0, 1), 2.1),
], False)
sketch22.addConstraint([
    Sketcher.Constraint("Equal", 0, 1),
    Sketcher.Constraint("Symmetric", 0, 3, 1, 3, -1),
    Sketcher.Constraint("Diameter", 0, 4.2),
    Sketcher.Constraint("DistanceX", 0, 3, -1, 1, 55.0),
    Sketcher.Constraint("DistanceY", 0, 3, -1, 1, 55.0),
])
doc.recompute()
hole13 = doc.addObject("PartDesign::Hole", "Hole012")
body.addObject(hole13)
hole13.Profile = sketch22
hole13.ThreadType = "None"
hole13.Diameter = 4.2
hole13.DepthType = "ThroughAll"
hole13.Reversed = True
doc.recompute()

fillet6 = doc.addObject("PartDesign::Fillet", "Fillet005")
body.addObject(fillet6)
fillet6.Base = (hole13, edges_at(hole13, [(85, 4, -13)]))
fillet6.Radius = 2

doc.recompute()
